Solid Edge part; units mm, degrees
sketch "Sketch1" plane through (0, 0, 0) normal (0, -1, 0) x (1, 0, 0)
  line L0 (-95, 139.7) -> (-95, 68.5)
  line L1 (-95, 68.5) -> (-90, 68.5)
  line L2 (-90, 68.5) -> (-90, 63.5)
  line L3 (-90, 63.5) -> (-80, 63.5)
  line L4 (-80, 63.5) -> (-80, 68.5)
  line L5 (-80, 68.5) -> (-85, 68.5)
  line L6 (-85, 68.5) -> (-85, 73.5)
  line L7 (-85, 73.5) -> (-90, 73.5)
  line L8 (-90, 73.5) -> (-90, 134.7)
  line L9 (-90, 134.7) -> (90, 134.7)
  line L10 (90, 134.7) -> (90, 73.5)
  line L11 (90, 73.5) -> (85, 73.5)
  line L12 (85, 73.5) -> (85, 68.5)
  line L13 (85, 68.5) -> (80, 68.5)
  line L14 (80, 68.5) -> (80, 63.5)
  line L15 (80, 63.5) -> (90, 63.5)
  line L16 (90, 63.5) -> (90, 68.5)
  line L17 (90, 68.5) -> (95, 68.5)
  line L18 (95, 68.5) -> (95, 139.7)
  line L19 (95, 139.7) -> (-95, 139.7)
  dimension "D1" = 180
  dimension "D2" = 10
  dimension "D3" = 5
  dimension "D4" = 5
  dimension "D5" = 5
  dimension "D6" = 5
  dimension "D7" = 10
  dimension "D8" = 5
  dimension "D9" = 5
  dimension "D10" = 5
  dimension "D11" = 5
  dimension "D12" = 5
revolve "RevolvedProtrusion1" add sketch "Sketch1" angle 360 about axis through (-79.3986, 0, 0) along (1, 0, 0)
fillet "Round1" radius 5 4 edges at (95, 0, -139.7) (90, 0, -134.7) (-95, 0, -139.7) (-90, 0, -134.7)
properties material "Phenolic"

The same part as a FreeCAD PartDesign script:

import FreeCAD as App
import Part
import Sketcher
from FreeCAD import Vector
Q = App.Units.Quantity


def edges_at(feature, points):
    """Names of the edges that pass closest to the given points."""
    edges = feature.Shape.Edges
    near = lambda p: min(range(len(edges)), key=lambda i: edges[i].distToShape(Part.Vertex(*p))[0])
    return sorted({f"Edge{near(p) + 1}" for p in points})


def add_polygon(sketch, points):
    """Adds a closed chain of lines whose ends are joined by coincident constraints."""
    first, n = sketch.GeometryCount, len(points)
    for a, b in zip(points, points[1:] + points[:1]):
        sketch.addGeometry(Part.LineSegment(App.Vector(*a, 0), App.Vector(*b, 0)), False)
    for i in range(n):
        sketch.addConstraint(Sketcher.Constraint("Coincident", first + i, 2, first + (i + 1) % n, 1))

doc = App.newDocument("Part")
body = doc.addObject("PartDesign::Body", "Body")

sketch1 = doc.addObject("Sketcher::SketchObject", "Sketch")
body.addObject(sketch1)
sketch1.AttachmentSupport = (doc.XZ_Plane, [""])
sketch1.MapMode = "FlatFace"
add_polygon(sketch1, [(95, 140), (-95, 140), (-95, 68), (-90, 68), (-90, 64), (-80, 64), (-80, 68), (-85, 68), (-85, 74), (-90, 74), (-90, 135), (90, 135), (90, 74), (85, 74), (85, 68), (80, 68), (80, 64), (90, 64), (90, 68), (95, 68)])
sketch1.addConstraint([
    Sketcher.Constraint("Horizontal", 0),
    Sketcher.Constraint("Vertical", 1),
    Sketcher.Constraint("Horizontal", 2),
    Sketcher.Constraint("Vertical", 3),
    Sketcher.Constraint("Horizontal", 4),
    Sketcher.Constraint("Vertical", 5),
    Sketcher.Constraint("Horizontal", 6),
    Sketcher.Constraint("Vertical", 7),
    Sketcher.Constraint("Horizontal", 8),
    Sketcher.Constraint("Vertical", 9),
    Sketcher.Constraint("Horizontal", 10),
    Sketcher.Constraint("Vertical", 11),
    Sketcher.Constraint("Horizontal", 12),
    Sketcher.Constraint("Vertical", 13),
    Sketcher.Constraint("Horizontal", 14),
    Sketcher.Constraint("Vertical", 15),
    Sketcher.Constraint("Horizontal", 16),
    Sketcher.Constraint("Vertical", 17),
    Sketcher.Constraint("Horizontal", 18),
    Sketcher.Constraint("Vertical", 19),
    Sketcher.Constraint("Symmetric", 8, 2, 11, 2, -2),
    Sketcher.Constraint("Symmetric", 6, 2, 13, 2, -2),
    Sketcher.Constraint("Symmetric", 4, 2, 15, 2, -2),
    Sketcher.Constraint("Symmetric", 2, 2, 17, 2, -2),
    Sketcher.Constraint("Horizontal", 2, 2, 5, 2),
    Sketcher.Constraint("Vertical", 3, 2, 8, 2),
    Sketcher.Constraint("Equal", 2, 6),
    Sketcher.Constraint("Equal", 6, 8),
    Sketcher.Constraint("Equal", 14, 18),
    Sketcher.Constraint("Equal", 18, 3),
    Sketcher.Constraint("Equal", 5, 7),
    Sketcher.Constraint("DistanceX", 2, 2, -1, 1, Q("90 mm")),
    Sketcher.Constraint("DistanceX", 4, 2, -1, 1, Q("80 mm")),
    Sketcher.Constraint("DistanceY", 1, 2, 1, 1, Q("71.2 mm")),
    Sketcher.Constraint("DistanceY", 9, 1, 9, 2, Q("61.2 mm")),
    Sketcher.Constraint("DistanceY", -1, 1, 0, 2, Q("139.7 mm")),
])
revolution = doc.addObject("PartDesign::Revolution", "Revolution")
body.addObject(revolution)
revolution.Profile = sketch1
revolution.ReferenceAxis = (sketch1, ["H_Axis"])
revolution.Angle = 360
doc.recompute()

fillet = doc.addObject("PartDesign::Fillet", "Fillet")
body.addObject(fillet)
fillet.Base = (revolution, edges_at(revolution, [
    (95, 0, -139.7),
    (90, 0, -134.7),
    (-95, 0, -139.7),
    (-90, 0, -134.7),
]))
fillet.Radius = 5

doc.recompute()
